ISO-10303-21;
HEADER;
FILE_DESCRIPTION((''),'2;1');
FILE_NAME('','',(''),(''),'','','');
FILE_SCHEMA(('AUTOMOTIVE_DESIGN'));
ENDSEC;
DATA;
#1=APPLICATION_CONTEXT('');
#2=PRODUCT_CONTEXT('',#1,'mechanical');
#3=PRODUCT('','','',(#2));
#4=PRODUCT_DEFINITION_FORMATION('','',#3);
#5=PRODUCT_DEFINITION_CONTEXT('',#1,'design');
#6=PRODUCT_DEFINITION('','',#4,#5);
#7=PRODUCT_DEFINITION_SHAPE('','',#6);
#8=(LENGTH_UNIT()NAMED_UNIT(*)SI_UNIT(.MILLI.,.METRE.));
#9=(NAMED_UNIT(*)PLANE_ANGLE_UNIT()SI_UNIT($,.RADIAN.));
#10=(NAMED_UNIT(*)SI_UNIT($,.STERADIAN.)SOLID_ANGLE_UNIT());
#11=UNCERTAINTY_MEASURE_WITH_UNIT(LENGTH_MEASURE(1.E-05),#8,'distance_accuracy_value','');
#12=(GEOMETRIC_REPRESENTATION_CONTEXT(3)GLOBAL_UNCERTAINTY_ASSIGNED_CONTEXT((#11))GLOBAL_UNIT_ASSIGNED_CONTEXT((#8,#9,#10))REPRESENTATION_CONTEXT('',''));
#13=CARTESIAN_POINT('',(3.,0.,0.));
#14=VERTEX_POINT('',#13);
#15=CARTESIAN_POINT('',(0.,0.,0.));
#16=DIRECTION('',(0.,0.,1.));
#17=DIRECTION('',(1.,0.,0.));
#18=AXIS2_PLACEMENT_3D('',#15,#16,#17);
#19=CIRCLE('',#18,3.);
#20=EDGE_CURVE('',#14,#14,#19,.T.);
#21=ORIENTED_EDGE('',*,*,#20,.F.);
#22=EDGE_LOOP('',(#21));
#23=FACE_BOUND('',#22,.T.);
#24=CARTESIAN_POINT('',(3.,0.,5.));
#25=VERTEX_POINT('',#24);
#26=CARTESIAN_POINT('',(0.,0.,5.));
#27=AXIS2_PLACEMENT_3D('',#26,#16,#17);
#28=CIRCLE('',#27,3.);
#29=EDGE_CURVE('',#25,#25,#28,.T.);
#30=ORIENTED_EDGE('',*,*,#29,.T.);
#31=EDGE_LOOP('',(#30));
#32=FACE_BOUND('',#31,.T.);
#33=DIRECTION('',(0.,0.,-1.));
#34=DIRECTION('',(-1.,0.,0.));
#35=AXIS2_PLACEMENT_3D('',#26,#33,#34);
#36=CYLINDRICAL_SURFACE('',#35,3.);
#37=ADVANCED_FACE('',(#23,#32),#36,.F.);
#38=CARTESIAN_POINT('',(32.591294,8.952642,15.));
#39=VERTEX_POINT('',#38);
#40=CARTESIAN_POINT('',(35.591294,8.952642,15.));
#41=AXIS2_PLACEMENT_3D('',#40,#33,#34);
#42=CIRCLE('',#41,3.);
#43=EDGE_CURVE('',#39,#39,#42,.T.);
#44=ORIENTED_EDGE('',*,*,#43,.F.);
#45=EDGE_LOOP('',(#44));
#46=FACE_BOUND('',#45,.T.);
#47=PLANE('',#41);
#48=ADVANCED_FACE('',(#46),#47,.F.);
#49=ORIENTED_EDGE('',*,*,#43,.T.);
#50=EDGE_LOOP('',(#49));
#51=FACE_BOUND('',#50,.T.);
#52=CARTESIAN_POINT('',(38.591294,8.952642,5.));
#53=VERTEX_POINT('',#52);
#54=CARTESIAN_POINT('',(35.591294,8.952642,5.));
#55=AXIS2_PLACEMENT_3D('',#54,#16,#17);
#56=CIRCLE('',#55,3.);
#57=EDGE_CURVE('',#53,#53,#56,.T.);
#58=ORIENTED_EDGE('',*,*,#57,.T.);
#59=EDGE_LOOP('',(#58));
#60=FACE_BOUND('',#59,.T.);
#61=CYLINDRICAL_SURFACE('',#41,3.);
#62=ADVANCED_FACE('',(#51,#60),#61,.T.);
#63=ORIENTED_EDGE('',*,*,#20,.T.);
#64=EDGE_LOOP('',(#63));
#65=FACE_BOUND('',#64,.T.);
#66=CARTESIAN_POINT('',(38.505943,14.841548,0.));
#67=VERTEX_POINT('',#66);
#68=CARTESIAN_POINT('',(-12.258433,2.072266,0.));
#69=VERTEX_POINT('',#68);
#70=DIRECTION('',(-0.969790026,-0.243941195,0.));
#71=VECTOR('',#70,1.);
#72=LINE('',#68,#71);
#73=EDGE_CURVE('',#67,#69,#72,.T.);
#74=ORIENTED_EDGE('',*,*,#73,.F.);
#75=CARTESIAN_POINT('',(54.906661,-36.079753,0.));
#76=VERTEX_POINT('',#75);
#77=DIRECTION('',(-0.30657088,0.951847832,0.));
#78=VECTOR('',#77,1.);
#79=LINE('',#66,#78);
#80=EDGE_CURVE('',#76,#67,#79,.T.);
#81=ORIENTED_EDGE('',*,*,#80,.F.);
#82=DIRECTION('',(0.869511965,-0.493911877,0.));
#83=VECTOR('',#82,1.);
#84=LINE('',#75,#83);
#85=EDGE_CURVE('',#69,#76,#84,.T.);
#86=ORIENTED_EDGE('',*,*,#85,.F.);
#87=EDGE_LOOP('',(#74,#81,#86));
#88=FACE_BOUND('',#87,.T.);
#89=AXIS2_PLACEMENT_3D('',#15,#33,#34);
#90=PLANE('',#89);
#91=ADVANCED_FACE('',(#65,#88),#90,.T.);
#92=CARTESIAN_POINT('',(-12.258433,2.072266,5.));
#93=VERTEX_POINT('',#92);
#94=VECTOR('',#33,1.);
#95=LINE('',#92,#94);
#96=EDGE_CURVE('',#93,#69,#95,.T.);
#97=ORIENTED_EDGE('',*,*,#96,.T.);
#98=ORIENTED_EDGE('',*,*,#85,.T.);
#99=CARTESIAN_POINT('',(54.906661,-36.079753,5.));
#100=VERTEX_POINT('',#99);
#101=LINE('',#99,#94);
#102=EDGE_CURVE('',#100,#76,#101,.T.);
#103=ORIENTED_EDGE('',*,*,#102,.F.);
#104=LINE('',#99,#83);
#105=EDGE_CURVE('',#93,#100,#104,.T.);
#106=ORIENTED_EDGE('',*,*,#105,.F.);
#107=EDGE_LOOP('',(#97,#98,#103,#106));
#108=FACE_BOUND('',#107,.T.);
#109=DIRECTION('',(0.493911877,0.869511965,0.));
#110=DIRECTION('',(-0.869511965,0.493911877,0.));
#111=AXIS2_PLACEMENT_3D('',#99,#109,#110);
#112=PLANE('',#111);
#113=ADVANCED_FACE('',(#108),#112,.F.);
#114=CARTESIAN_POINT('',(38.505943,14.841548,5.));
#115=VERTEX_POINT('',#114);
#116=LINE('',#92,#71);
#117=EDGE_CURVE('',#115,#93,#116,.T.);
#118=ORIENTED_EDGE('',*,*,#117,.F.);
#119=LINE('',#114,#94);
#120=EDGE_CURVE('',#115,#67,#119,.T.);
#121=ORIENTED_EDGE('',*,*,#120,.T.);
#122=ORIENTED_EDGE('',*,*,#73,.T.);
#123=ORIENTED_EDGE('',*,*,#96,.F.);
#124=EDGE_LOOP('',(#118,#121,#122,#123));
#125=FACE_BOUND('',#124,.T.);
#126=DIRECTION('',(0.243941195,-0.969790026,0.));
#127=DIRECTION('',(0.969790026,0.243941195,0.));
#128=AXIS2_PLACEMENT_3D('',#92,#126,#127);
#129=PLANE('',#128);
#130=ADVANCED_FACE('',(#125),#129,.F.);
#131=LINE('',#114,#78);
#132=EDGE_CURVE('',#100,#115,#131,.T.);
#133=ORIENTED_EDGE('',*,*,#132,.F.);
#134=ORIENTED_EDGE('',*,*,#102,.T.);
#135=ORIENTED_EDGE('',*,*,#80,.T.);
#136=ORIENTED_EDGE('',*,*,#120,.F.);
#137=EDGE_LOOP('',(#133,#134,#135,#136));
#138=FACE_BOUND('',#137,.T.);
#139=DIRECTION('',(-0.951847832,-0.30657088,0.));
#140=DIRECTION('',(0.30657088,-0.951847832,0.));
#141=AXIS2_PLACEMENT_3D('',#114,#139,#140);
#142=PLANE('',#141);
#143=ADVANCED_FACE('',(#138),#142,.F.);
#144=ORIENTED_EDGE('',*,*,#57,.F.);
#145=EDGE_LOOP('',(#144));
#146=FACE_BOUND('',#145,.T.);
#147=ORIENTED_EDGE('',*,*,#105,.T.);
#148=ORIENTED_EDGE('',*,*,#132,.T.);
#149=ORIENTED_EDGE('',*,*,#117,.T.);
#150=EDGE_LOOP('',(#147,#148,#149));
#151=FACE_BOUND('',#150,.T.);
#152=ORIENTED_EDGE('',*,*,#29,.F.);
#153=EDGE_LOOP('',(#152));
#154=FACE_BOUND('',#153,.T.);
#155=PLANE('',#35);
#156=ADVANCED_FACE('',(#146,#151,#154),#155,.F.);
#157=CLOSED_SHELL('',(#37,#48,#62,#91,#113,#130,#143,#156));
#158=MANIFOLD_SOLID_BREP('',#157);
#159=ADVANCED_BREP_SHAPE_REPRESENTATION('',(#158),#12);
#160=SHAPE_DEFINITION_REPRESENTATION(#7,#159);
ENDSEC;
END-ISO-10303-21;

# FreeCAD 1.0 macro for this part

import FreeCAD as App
import Part
import Sketcher

V = App.Vector
Q = App.Units.Quantity


def add_polygon(sketch, points):
    """Adds a closed chain of lines whose ends are joined by coincident constraints."""
    first, n = sketch.GeometryCount, len(points)
    for a, b in zip(points, points[1:] + points[:1]):
        sketch.addGeometry(Part.LineSegment(App.Vector(*a, 0), App.Vector(*b, 0)), False)
    for i in range(n):
        sketch.addConstraint(Sketcher.Constraint("Coincident", first + i, 2, first + (i + 1) % n, 1))

doc = App.newDocument("Part")
body = doc.addObject("PartDesign::Body", "Body")

# Sketch on XY plane
sketch1 = body.newObject("Sketcher::SketchObject", "Sketch")
sketch1.AttachmentSupport = (doc.getObject("XY_Plane"), [""])
sketch1.MapMode = "FlatFace"
add_polygon(sketch1, [(38.5, 14.8), (-12.3, 2.1), (54.9, -36.1)])  # lines 0-2
sketch1.addGeometry(Part.Circle(V(0, 0, 0), V(0, 0, 1), 3), False)  # 3
sketch1.addGeometry(Part.Circle(V(35.6, 9, 0), V(0, 0, 1), 3), False)  # 4
sketch1.addConstraint([
    Sketcher.Constraint("Coincident", 3, 3, -1, 1),
    Sketcher.Constraint("Equal", 3, 4),
    Sketcher.Constraint("Diameter", 3, Q("6 mm")),
    Sketcher.Constraint("DistanceY", 1, 2, 2, 2, Q("50.921302 mm")),
    Sketcher.Constraint("Distance", 0, Q("52.345739 mm")),
    Sketcher.Constraint("Distance", 1, Q("77.244588 mm")),
    Sketcher.Constraint("DistanceY", -1, 1, 4, 3, Q("8.952642 mm")),
    Sketcher.Constraint("DistanceX", -1, 1, 1, 2, Q("54.906661 mm")),
    Sketcher.Constraint("DistanceY", -1, 1, 2, 2, Q("14.841548 mm")),
    Sketcher.Constraint("DistanceY", 1, 2, 0, 2, Q("38.15202 mm")),
    Sketcher.Constraint("DistanceX", 4, 3, 2, 2, Q("2.914649 mm")),
])
pad1 = body.newObject("PartDesign::Pad", "Pad")
pad1.Profile = sketch1
pad1.Length = 5

# Sketch on XY plane
sketch2 = body.newObject("Sketcher::SketchObject", "Sketch001")
sketch2.AttachmentSupport = (doc.getObject("XY_Plane"), [""])
sketch2.MapMode = "FlatFace"
sketch2.addGeometry(Part.Circle(V(35.6, 9, 0), V(0, 0, 1), 3), False)
sketch2.addConstraint([
    Sketcher.Constraint("Diameter", 0, Q("6 mm")),
    Sketcher.Constraint("DistanceY", -1, 1, 0, 3, Q("8.952642 mm")),
    Sketcher.Constraint("DistanceX", -1, 1, 0, 3, Q("35.591294 mm")),
])
pad2 = body.newObject("PartDesign::Pad", "Pad001")
pad2.Profile = sketch2
pad2.Length = 15

doc.recompute()
